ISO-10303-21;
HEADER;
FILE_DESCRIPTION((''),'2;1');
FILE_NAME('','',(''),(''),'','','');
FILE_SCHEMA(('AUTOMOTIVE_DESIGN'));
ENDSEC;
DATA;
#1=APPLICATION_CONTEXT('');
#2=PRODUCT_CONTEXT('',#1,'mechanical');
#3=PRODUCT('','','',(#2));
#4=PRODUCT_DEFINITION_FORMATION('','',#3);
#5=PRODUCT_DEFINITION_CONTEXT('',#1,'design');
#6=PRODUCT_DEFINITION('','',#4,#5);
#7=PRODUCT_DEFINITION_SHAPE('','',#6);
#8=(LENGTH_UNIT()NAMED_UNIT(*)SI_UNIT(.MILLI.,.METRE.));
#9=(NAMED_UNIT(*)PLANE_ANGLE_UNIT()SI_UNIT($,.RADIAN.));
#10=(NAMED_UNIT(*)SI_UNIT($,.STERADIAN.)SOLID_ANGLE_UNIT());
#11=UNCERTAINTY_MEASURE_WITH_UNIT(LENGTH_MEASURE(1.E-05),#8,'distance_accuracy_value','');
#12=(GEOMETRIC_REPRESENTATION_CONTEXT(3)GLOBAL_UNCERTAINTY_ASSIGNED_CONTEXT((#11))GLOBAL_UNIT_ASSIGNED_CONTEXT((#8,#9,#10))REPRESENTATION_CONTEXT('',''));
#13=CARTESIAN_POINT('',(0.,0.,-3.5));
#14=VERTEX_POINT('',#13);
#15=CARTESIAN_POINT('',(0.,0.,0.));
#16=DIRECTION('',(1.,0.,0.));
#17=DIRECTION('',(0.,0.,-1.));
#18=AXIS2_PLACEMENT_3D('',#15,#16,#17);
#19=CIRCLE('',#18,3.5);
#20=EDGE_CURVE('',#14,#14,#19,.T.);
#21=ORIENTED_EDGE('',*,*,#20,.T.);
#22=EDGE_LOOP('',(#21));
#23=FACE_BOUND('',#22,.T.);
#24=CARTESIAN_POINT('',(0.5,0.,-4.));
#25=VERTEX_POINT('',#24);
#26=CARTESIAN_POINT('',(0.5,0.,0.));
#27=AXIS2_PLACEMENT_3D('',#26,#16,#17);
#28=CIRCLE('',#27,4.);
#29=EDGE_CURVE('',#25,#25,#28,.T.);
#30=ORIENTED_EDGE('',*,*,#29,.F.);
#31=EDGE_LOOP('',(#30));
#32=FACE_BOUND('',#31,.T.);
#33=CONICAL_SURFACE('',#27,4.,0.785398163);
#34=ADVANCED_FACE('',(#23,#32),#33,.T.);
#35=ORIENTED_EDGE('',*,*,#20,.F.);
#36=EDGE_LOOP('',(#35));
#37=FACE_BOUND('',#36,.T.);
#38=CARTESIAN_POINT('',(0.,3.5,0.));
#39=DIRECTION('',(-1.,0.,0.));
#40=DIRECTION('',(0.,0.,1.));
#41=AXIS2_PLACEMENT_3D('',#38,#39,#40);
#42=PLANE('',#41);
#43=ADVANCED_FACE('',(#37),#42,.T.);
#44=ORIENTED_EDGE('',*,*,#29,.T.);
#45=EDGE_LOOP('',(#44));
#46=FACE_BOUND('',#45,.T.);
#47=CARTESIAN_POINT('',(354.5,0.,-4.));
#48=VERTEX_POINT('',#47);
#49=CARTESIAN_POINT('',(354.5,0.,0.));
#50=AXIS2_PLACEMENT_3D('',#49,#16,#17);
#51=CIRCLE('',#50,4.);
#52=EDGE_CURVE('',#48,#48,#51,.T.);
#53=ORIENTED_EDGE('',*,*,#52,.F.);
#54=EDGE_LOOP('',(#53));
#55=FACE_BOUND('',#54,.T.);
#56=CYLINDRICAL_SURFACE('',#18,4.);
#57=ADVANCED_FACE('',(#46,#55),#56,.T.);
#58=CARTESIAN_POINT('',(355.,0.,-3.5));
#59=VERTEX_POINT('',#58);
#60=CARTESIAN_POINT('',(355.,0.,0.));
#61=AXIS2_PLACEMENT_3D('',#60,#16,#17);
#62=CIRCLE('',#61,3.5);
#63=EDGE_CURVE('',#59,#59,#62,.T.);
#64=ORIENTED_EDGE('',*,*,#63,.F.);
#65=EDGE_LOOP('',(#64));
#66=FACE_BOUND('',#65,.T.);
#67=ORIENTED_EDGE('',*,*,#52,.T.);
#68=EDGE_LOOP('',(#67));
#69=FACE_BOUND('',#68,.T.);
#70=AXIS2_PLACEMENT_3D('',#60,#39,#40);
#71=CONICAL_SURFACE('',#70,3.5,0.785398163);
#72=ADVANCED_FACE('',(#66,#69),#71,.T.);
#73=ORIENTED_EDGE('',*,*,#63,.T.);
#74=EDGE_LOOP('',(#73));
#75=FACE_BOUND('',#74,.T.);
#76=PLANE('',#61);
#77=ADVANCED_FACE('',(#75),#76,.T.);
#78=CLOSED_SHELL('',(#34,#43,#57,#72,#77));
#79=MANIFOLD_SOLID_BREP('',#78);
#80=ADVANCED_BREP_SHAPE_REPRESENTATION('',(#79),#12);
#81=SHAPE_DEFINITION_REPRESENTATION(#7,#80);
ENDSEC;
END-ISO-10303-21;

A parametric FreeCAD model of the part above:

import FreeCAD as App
import Part
import Sketcher

doc = App.newDocument("Part")
body = doc.addObject("PartDesign::Body", "Body")

# Sketch on XY plane
sketch1 = body.newObject("Sketcher::SketchObject", "Sketch")
sketch1.AttachmentSupport = (doc.getObject("XY_Plane"), [""])
sketch1.MapMode = "FlatFace"
sketch1.addGeometry(Part.LineSegment(App.Vector(0, 3.5, 0), App.Vector(0, 0, 0)), False)
sketch1.addGeometry(Part.LineSegment(App.Vector(0, 0, 0), App.Vector(355, 0, 0)), False)
sketch1.addGeometry(Part.LineSegment(App.Vector(355, 0, 0), App.Vector(355, 3.5, 0)), False)
sketch1.addGeometry(Part.LineSegment(App.Vector(355, 3.5, 0), App.Vector(354.5, 4, 0)), False)
sketch1.addGeometry(Part.LineSegment(App.Vector(354.5, 4, 0), App.Vector(0.5, 4, 0)), False)
sketch1.addGeometry(Part.LineSegment(App.Vector(0.5, 4, 0), App.Vector(0, 3.5, 0)), False)
sketch1.addConstraint(Sketcher.Constraint("Coincident", 0, 2, 1, 1))
sketch1.addConstraint(Sketcher.Constraint("Coincident", 1, 2, 2, 1))
sketch1.addConstraint(Sketcher.Constraint("Coincident", 2, 2, 3, 1))
sketch1.addConstraint(Sketcher.Constraint("Coincident", 3, 2, 4, 1))
sketch1.addConstraint(Sketcher.Constraint("Coincident", 4, 2, 5, 1))
sketch1.addConstraint(Sketcher.Constraint("Coincident", 5, 2, 0, 1))
sketch1.addConstraint(Sketcher.Constraint("Vertical", 0))
sketch1.addConstraint(Sketcher.Constraint("Horizontal", 1))
sketch1.addConstraint(Sketcher.Constraint("Vertical", 2))
sketch1.addConstraint(Sketcher.Constraint("Horizontal", 4))
sketch1.addConstraint(Sketcher.Constraint("Coincident", 0, 2, -1, 1))
sketch1.addConstraint(Sketcher.Constraint("Perpendicular", 3, 5))
sketch1.addConstraint(Sketcher.Constraint("Horizontal", 2, 2, 5, 2))
sketch1.addConstraint(Sketcher.Constraint("Equal", 3, 5))
sketch1.addConstraint(Sketcher.Constraint("DistanceX", 1, 1, 1, 2, 355.0))
sketch1.addConstraint(Sketcher.Constraint("DistanceX", 4, 2, 4, 1, 354.0))
sketch1.addConstraint(Sketcher.Constraint("DistanceY", 0, 2, 0, 1, 3.5))
revolution = body.newObject("PartDesign::Revolution", "Revolution")
revolution.Profile = sketch1
revolution.ReferenceAxis = (sketch1, ["H_Axis"])
revolution.Angle = 360

doc.recompute()
